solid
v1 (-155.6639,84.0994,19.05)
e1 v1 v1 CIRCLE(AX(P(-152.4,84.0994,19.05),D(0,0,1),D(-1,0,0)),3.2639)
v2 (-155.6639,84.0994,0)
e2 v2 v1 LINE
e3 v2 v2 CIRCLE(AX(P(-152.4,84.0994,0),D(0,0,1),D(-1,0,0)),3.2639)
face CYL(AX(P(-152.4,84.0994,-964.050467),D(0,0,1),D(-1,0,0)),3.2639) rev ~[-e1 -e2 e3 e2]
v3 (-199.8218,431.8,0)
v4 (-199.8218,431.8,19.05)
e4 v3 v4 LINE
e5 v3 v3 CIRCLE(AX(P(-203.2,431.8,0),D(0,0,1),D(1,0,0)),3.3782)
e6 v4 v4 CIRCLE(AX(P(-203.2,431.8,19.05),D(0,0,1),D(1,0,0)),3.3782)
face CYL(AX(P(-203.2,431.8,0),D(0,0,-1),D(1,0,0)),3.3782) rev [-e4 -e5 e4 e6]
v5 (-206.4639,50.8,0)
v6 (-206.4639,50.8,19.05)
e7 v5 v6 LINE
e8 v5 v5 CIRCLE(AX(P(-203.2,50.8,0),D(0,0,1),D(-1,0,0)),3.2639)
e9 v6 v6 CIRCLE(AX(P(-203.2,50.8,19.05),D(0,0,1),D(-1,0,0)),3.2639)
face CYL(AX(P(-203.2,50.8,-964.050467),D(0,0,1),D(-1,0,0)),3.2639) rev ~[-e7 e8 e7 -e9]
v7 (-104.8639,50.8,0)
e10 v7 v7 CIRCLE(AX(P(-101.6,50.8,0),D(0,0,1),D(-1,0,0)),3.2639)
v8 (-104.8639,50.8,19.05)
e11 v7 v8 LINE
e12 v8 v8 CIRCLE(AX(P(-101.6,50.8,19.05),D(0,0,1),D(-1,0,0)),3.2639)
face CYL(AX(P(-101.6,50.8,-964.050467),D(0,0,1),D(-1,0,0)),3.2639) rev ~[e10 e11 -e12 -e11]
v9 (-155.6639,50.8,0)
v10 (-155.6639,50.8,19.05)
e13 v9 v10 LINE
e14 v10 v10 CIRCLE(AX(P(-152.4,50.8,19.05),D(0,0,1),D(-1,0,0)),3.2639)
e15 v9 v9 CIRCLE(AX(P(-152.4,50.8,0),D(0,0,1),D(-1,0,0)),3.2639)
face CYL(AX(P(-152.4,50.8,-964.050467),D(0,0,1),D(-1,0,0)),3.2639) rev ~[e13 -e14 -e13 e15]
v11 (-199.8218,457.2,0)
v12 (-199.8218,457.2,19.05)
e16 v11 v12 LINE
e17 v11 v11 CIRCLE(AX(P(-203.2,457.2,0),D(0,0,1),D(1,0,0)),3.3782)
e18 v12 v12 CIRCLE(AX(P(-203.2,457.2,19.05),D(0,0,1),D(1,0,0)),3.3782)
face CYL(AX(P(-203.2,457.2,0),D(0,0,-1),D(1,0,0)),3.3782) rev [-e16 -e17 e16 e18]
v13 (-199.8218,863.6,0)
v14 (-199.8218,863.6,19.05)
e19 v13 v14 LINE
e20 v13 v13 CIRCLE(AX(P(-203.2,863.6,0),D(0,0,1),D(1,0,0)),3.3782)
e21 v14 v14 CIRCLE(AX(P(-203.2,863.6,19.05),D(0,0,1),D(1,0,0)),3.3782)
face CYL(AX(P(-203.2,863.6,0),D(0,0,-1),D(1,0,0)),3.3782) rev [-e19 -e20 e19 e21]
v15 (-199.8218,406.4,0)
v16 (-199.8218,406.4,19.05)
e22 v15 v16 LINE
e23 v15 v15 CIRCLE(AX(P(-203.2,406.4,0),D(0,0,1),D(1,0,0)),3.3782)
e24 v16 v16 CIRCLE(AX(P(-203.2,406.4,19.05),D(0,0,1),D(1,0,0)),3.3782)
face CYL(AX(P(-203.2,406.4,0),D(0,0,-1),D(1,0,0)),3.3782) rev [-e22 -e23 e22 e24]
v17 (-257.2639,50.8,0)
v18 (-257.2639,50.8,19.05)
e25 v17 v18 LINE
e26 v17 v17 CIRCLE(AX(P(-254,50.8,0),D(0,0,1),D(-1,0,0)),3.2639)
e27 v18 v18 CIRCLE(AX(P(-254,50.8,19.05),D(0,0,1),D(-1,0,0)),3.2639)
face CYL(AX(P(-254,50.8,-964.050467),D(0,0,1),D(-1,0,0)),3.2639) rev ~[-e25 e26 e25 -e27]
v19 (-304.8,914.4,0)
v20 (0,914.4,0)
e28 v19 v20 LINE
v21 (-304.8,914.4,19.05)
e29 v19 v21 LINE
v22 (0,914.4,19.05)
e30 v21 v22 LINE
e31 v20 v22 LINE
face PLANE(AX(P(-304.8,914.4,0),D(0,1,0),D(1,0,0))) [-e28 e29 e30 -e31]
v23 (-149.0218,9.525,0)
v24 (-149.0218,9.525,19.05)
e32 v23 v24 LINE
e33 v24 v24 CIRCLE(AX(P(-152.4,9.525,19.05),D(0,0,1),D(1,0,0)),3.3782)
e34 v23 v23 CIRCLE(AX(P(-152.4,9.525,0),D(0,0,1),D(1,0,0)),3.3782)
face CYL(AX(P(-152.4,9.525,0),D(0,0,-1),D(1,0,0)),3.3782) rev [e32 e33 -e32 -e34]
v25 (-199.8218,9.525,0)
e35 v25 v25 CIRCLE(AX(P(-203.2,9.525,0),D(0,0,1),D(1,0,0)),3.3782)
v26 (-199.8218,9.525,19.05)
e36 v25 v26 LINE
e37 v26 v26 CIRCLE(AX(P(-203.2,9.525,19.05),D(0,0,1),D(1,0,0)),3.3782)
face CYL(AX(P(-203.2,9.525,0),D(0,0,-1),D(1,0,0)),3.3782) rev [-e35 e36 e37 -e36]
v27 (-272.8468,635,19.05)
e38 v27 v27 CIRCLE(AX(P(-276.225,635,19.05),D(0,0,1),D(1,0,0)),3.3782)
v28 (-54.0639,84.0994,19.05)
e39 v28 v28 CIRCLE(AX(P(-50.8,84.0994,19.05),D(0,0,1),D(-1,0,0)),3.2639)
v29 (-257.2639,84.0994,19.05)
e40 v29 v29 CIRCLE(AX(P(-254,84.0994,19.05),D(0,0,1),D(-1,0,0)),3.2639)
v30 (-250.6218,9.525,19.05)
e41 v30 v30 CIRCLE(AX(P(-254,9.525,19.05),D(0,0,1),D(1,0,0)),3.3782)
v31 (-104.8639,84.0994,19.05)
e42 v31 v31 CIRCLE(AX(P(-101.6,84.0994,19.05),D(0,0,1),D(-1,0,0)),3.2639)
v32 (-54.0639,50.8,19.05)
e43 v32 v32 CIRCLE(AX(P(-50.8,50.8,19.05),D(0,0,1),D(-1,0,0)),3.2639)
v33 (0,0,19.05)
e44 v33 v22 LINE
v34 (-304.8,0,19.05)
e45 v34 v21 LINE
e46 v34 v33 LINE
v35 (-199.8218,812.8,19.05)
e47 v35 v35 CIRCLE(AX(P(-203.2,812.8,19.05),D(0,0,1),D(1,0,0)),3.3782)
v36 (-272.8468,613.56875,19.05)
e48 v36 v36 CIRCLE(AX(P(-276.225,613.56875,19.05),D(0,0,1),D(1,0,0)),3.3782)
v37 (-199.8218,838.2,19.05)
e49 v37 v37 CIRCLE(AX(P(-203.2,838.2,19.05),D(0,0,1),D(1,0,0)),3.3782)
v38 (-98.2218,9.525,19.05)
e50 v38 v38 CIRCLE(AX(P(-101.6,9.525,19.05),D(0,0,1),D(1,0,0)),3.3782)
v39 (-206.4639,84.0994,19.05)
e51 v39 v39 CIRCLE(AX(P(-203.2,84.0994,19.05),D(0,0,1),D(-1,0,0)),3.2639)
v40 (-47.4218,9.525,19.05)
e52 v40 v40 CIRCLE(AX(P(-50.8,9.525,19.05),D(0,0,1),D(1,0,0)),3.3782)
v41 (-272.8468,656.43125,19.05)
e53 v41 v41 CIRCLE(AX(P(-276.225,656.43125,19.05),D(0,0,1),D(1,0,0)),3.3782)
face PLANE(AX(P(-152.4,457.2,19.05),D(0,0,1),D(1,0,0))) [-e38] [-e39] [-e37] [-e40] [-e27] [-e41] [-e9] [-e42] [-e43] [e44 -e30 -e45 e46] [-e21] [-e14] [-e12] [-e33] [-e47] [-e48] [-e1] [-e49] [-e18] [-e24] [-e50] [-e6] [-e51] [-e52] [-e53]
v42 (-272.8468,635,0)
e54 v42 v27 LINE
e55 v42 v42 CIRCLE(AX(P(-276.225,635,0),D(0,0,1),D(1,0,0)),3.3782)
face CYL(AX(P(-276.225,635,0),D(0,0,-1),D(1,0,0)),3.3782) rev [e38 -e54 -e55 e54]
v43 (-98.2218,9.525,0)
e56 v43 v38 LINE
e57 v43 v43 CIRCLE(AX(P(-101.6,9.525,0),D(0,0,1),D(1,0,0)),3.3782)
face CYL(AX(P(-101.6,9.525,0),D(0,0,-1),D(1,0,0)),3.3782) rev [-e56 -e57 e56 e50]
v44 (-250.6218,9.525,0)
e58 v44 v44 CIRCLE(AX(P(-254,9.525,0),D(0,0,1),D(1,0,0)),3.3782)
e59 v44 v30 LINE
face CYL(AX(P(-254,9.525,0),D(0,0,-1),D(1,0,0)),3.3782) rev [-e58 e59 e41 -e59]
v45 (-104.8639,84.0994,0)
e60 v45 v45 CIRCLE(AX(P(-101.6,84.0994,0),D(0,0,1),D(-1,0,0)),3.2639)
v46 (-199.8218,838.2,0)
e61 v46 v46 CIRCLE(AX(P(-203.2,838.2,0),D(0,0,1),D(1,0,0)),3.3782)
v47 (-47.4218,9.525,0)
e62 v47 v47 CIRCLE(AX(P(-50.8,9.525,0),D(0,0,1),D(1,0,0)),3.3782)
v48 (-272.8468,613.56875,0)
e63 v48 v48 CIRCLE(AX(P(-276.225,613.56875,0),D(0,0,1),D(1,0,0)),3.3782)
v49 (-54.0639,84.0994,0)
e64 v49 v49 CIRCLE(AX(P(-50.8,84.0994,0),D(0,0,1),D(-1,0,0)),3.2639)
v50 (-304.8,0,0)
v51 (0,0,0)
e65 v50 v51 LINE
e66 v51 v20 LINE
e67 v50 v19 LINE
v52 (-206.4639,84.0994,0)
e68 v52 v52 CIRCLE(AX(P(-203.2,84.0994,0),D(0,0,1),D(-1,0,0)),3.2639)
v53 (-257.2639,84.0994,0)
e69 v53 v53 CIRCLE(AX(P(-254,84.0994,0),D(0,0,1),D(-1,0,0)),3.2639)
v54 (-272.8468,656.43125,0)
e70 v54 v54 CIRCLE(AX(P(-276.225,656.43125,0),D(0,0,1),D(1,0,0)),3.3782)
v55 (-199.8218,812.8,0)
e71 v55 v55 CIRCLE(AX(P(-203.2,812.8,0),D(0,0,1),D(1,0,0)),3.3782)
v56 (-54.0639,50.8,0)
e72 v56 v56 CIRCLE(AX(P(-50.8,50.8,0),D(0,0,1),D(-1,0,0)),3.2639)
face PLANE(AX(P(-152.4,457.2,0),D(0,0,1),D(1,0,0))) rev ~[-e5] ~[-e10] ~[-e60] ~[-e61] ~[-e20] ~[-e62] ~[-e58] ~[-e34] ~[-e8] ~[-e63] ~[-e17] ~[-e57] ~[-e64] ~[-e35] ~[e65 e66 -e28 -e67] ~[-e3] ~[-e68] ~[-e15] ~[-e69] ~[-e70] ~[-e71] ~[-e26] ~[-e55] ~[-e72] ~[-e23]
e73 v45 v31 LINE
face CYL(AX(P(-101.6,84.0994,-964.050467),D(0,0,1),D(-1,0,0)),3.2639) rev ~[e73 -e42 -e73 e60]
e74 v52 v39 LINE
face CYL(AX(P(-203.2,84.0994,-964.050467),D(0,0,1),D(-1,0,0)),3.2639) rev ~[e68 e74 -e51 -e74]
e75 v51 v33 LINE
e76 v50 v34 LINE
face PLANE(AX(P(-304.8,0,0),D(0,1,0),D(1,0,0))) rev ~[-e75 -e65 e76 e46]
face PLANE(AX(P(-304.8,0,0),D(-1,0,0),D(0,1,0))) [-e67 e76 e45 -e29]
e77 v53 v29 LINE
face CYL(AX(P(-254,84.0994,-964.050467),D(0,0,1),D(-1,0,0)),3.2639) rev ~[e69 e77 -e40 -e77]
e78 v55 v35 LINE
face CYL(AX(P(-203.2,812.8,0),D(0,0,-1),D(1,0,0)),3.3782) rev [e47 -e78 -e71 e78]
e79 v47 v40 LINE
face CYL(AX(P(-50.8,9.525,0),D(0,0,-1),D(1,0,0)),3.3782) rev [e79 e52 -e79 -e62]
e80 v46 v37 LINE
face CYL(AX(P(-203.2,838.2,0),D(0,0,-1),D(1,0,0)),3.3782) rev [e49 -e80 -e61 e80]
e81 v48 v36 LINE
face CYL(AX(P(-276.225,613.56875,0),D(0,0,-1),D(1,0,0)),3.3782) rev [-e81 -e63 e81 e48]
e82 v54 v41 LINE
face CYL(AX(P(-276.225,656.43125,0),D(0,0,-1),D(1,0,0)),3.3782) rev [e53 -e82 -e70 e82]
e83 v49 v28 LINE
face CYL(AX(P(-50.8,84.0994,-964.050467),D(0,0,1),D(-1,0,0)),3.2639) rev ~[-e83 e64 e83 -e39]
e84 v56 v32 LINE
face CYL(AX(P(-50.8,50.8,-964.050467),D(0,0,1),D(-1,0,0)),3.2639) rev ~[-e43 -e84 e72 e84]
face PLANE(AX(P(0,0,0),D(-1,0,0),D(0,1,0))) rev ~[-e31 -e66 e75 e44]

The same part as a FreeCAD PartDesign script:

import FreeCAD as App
import Part
import Sketcher
from FreeCAD import Vector
Q = App.Units.Quantity


def add_polygon(sketch, points):
    """Adds a closed chain of lines whose ends are joined by coincident constraints."""
    first, n = sketch.GeometryCount, len(points)
    for a, b in zip(points, points[1:] + points[:1]):
        sketch.addGeometry(Part.LineSegment(App.Vector(*a, 0), App.Vector(*b, 0)), False)
    for i in range(n):
        sketch.addConstraint(Sketcher.Constraint("Coincident", first + i, 2, first + (i + 1) % n, 1))

doc = App.newDocument("Part")
body = doc.addObject("PartDesign::Body", "Body")

sketch1 = body.newObject("Sketcher::SketchObject", "Sketch")
sketch1.AttachmentSupport = (doc.getObject("XY_Plane"), [""])
sketch1.MapMode = "FlatFace"
add_polygon(sketch1, [(-304.8, 914.4), (-304.8, 0), (0, 0), (0, 914.4)])
sketch1.addGeometry(Part.Circle(Vector(-254, 9.5, 0), Vector(0, 0, 1), 3.4), False)
sketch1.addGeometry(Part.Circle(Vector(-203.2, 9.5, 0), Vector(0, 0, 1), 3.4), False)
sketch1.addGeometry(Part.Circle(Vector(-203.2, 406.4, 0), Vector(0, 0, 1), 3.4), False)
sketch1.addGeometry(Part.Circle(Vector(-203.2, 431.8, 0), Vector(0, 0, 1), 3.4), False)
sketch1.addGeometry(Part.Circle(Vector(-152.4, 9.5, 0), Vector(0, 0, 1), 3.4), False)
sketch1.addGeometry(Part.Circle(Vector(-101.6, 9.5, 0), Vector(0, 0, 1), 3.4), False)
sketch1.addGeometry(Part.Circle(Vector(-50.8, 9.5, 0), Vector(0, 0, 1), 3.4), False)
sketch1.addGeometry(Part.Circle(Vector(-276.2, 613.6, 0), Vector(0, 0, 1), 3.4), False)
sketch1.addGeometry(Part.Circle(Vector(-276.2, 635, 0), Vector(0, 0, 1), 3.4), False)
sketch1.addGeometry(Part.Circle(Vector(-203.2, 457.2, 0), Vector(0, 0, 1), 3.4), False)
sketch1.addGeometry(Part.Circle(Vector(-276.2, 656.4, 0), Vector(0, 0, 1), 3.4), False)
sketch1.addGeometry(Part.Circle(Vector(-203.2, 812.8, 0), Vector(0, 0, 1), 3.4), False)
sketch1.addGeometry(Part.Circle(Vector(-203.2, 838.2, 0), Vector(0, 0, 1), 3.4), False)
sketch1.addGeometry(Part.Circle(Vector(-203.2, 863.6, 0), Vector(0, 0, 1), 3.4), False)
sketch1.addConstraint([
    Sketcher.Constraint("Vertical", 0),
    Sketcher.Constraint("Horizontal", 1),
    Sketcher.Constraint("Vertical", 2),
    Sketcher.Constraint("Horizontal", 3),
    Sketcher.Constraint("Coincident", 1, 2, -1, 1),
    Sketcher.Constraint("Equal", 4, 5),
    Sketcher.Constraint("Equal", 5, 6),
    Sketcher.Constraint("Equal", 6, 7),
    Sketcher.Constraint("Equal", 7, 8),
    Sketcher.Constraint("Equal", 8, 9),
    Sketcher.Constraint("Equal", 9, 10),
    Sketcher.Constraint("Equal", 10, 11),
    Sketcher.Constraint("Equal", 11, 12),
    Sketcher.Constraint("Equal", 12, 13),
    Sketcher.Constraint("Equal", 13, 14),
    Sketcher.Constraint("Equal", 14, 15),
    Sketcher.Constraint("Equal", 15, 16),
    Sketcher.Constraint("Equal", 16, 17),
    Sketcher.Constraint("Horizontal", 4, 3, 5, 3),
    Sketcher.Constraint("Horizontal", 5, 3, 8, 3),
    Sketcher.Constraint("Horizontal", 8, 3, 9, 3),
    Sketcher.Constraint("Horizontal", 9, 3, 10, 3),
    Sketcher.Constraint("Vertical", 5, 3, 6, 3),
    Sketcher.Constraint("Vertical", 6, 3, 7, 3),
    Sketcher.Constraint("Vertical", 11, 3, 12, 3),
    Sketcher.Constraint("Vertical", 7, 3, 13, 3),
    Sketcher.Constraint("Vertical", 12, 3, 14, 3),
    Sketcher.Constraint("Vertical", 13, 3, 15, 3),
    Sketcher.Constraint("Vertical", 15, 3, 16, 3),
    Sketcher.Constraint("Vertical", 16, 3, 17, 3),
    Sketcher.Constraint("DistanceX", 1, 1, 1, 2, Q("12 in")),
    Sketcher.Constraint("DistanceY", 0, 2, 0, 1, Q("36 in")),
    Sketcher.Constraint("Diameter", 4, Q("0.266 in")),
    Sketcher.Constraint("DistanceX", 4, 3, -1, 1, Q("10 in")),
    Sketcher.Constraint("DistanceX", 5, 3, -1, 1, Q("8 in")),
    Sketcher.Constraint("DistanceY", -1, 1, 6, 3, Q("16 in")),
    Sketcher.Constraint("DistanceY", -1, 1, 7, 3, Q("17 in")),
    Sketcher.Constraint("DistanceX", 8, 3, -1, 1, Q("6 in")),
    Sketcher.Constraint("DistanceX", 9, 3, -1, 1, Q("4 in")),
    Sketcher.Constraint("DistanceX", 10, 3, -1, 1, Q("2 in")),
    Sketcher.Constraint("DistanceY", -1, 1, 12, 3, Q("25 in")),
    Sketcher.Constraint("DistanceY", -1, 1, 13, 3, Q("18 in")),
    Sketcher.Constraint("DistanceY", -1, 1, 15, 3, Q("32 in")),
    Sketcher.Constraint("DistanceY", -1, 1, 16, 3, Q("33 in")),
    Sketcher.Constraint("DistanceY", -1, 1, 17, 3, Q("34 in")),
    Sketcher.Constraint("DistanceY", -1, 1, 4, 3, Q("0.375 in")),
    Sketcher.Constraint("DistanceX", 11, 3, -1, 1, Q("10.875 in")),
    Sketcher.Constraint("DistanceY", -1, 1, 11, 3, Q("24.15625 in")),
    Sketcher.Constraint("DistanceY", -1, 1, 14, 3, Q("25.84375 in")),
])
pad1 = body.newObject("PartDesign::Pad", "Pad")
pad1.Profile = sketch1
pad1.Length = Q("0.75 in")

sketch2 = body.newObject("Sketcher::SketchObject", "Sketch001")
sketch2.AttachmentSupport = (doc.getObject("XY_Plane"), [""])
sketch2.MapMode = "FlatFace"
sketch2.addGeometry([
    Part.Circle(Vector(-50.8, 84.1, 0), Vector(0, 0, 1), 3.3),
    Part.Circle(Vector(-50.8, 50.8, 0), Vector(0, 0, 1), 3.3),
    Part.Circle(Vector(-101.6, 50.8, 0), Vector(0, 0, 1), 3.3),
    Part.Circle(Vector(-101.6, 84.1, 0), Vector(0, 0, 1), 3.3),
    Part.Circle(Vector(-152.4, 84.1, 0), Vector(0, 0, 1), 3.3),
    Part.Circle(Vector(-152.4, 50.8, 0), Vector(0, 0, 1), 3.3),
    Part.Circle(Vector(-203.2, 84.1, 0), Vector(0, 0, 1), 3.3),
    Part.Circle(Vector(-203.2, 50.8, 0), Vector(0, 0, 1), 3.3),
    Part.Circle(Vector(-254, 84.1, 0), Vector(0, 0, 1), 3.3),
    Part.Circle(Vector(-254, 50.8, 0), Vector(0, 0, 1), 3.3),
], False)
sketch2.addConstraint([
    Sketcher.Constraint("Equal", 0, 1),
    Sketcher.Constraint("Equal", 1, 2),
    Sketcher.Constraint("Equal", 2, 3),
    Sketcher.Constraint("Equal", 3, 4),
    Sketcher.Constraint("Equal", 4, 5),
    Sketcher.Constraint("Equal", 5, 6),
    Sketcher.Constraint("Equal", 6, 7),
    Sketcher.Constraint("Equal", 7, 8),
    Sketcher.Constraint("Equal", 8, 9),
    Sketcher.Constraint("Horizontal", 1, 3, 2, 3),
    Sketcher.Constraint("Horizontal", 0, 3, 3, 3),
    Sketcher.Constraint("Horizontal", 3, 3, 4, 3),
    Sketcher.Constraint("Horizontal", 2, 3, 5, 3),
    Sketcher.Constraint("Horizontal", 4, 3, 6, 3),
    Sketcher.Constraint("Horizontal", 5, 3, 7, 3),
    Sketcher.Constraint("Horizontal", 6, 3, 8, 3),
    Sketcher.Constraint("Horizontal", 7, 3, 9, 3),
    Sketcher.Constraint("Vertical", 0, 3, 1, 3),
    Sketcher.Constraint("Vertical", 2, 3, 3, 3),
    Sketcher.Constraint("Vertical", 4, 3, 5, 3),
    Sketcher.Constraint("Vertical", 6, 3, 7, 3),
    Sketcher.Constraint("Vertical", 8, 3, 9, 3),
    Sketcher.Constraint("Diameter", 0, Q("0.257 in")),
    Sketcher.Constraint("DistanceX", 0, 3, -1, 1, Q("2 in")),
    Sketcher.Constraint("DistanceY", -1, 1, 1, 3, Q("2 in")),
    Sketcher.Constraint("DistanceX", 2, 3, -1, 1, Q("4 in")),
    Sketcher.Constraint("DistanceX", 4, 3, -1, 1, Q("6 in")),
    Sketcher.Constraint("DistanceX", 6, 3, -1, 1, Q("8 in")),
    Sketcher.Constraint("DistanceX", 8, 3, -1, 1, Q("10 in")),
    Sketcher.Constraint("DistanceY", -1, 1, 0, 3, Q("3.311 in")),
])
doc.recompute()
hole = body.newObject("PartDesign::Hole", "Hole")
hole.Profile = sketch2
hole.ThreadType = "None"
hole.Diameter = Q("0.257 in")
hole.DepthType = "ThroughAll"
hole.Reversed = True

doc.recompute()
